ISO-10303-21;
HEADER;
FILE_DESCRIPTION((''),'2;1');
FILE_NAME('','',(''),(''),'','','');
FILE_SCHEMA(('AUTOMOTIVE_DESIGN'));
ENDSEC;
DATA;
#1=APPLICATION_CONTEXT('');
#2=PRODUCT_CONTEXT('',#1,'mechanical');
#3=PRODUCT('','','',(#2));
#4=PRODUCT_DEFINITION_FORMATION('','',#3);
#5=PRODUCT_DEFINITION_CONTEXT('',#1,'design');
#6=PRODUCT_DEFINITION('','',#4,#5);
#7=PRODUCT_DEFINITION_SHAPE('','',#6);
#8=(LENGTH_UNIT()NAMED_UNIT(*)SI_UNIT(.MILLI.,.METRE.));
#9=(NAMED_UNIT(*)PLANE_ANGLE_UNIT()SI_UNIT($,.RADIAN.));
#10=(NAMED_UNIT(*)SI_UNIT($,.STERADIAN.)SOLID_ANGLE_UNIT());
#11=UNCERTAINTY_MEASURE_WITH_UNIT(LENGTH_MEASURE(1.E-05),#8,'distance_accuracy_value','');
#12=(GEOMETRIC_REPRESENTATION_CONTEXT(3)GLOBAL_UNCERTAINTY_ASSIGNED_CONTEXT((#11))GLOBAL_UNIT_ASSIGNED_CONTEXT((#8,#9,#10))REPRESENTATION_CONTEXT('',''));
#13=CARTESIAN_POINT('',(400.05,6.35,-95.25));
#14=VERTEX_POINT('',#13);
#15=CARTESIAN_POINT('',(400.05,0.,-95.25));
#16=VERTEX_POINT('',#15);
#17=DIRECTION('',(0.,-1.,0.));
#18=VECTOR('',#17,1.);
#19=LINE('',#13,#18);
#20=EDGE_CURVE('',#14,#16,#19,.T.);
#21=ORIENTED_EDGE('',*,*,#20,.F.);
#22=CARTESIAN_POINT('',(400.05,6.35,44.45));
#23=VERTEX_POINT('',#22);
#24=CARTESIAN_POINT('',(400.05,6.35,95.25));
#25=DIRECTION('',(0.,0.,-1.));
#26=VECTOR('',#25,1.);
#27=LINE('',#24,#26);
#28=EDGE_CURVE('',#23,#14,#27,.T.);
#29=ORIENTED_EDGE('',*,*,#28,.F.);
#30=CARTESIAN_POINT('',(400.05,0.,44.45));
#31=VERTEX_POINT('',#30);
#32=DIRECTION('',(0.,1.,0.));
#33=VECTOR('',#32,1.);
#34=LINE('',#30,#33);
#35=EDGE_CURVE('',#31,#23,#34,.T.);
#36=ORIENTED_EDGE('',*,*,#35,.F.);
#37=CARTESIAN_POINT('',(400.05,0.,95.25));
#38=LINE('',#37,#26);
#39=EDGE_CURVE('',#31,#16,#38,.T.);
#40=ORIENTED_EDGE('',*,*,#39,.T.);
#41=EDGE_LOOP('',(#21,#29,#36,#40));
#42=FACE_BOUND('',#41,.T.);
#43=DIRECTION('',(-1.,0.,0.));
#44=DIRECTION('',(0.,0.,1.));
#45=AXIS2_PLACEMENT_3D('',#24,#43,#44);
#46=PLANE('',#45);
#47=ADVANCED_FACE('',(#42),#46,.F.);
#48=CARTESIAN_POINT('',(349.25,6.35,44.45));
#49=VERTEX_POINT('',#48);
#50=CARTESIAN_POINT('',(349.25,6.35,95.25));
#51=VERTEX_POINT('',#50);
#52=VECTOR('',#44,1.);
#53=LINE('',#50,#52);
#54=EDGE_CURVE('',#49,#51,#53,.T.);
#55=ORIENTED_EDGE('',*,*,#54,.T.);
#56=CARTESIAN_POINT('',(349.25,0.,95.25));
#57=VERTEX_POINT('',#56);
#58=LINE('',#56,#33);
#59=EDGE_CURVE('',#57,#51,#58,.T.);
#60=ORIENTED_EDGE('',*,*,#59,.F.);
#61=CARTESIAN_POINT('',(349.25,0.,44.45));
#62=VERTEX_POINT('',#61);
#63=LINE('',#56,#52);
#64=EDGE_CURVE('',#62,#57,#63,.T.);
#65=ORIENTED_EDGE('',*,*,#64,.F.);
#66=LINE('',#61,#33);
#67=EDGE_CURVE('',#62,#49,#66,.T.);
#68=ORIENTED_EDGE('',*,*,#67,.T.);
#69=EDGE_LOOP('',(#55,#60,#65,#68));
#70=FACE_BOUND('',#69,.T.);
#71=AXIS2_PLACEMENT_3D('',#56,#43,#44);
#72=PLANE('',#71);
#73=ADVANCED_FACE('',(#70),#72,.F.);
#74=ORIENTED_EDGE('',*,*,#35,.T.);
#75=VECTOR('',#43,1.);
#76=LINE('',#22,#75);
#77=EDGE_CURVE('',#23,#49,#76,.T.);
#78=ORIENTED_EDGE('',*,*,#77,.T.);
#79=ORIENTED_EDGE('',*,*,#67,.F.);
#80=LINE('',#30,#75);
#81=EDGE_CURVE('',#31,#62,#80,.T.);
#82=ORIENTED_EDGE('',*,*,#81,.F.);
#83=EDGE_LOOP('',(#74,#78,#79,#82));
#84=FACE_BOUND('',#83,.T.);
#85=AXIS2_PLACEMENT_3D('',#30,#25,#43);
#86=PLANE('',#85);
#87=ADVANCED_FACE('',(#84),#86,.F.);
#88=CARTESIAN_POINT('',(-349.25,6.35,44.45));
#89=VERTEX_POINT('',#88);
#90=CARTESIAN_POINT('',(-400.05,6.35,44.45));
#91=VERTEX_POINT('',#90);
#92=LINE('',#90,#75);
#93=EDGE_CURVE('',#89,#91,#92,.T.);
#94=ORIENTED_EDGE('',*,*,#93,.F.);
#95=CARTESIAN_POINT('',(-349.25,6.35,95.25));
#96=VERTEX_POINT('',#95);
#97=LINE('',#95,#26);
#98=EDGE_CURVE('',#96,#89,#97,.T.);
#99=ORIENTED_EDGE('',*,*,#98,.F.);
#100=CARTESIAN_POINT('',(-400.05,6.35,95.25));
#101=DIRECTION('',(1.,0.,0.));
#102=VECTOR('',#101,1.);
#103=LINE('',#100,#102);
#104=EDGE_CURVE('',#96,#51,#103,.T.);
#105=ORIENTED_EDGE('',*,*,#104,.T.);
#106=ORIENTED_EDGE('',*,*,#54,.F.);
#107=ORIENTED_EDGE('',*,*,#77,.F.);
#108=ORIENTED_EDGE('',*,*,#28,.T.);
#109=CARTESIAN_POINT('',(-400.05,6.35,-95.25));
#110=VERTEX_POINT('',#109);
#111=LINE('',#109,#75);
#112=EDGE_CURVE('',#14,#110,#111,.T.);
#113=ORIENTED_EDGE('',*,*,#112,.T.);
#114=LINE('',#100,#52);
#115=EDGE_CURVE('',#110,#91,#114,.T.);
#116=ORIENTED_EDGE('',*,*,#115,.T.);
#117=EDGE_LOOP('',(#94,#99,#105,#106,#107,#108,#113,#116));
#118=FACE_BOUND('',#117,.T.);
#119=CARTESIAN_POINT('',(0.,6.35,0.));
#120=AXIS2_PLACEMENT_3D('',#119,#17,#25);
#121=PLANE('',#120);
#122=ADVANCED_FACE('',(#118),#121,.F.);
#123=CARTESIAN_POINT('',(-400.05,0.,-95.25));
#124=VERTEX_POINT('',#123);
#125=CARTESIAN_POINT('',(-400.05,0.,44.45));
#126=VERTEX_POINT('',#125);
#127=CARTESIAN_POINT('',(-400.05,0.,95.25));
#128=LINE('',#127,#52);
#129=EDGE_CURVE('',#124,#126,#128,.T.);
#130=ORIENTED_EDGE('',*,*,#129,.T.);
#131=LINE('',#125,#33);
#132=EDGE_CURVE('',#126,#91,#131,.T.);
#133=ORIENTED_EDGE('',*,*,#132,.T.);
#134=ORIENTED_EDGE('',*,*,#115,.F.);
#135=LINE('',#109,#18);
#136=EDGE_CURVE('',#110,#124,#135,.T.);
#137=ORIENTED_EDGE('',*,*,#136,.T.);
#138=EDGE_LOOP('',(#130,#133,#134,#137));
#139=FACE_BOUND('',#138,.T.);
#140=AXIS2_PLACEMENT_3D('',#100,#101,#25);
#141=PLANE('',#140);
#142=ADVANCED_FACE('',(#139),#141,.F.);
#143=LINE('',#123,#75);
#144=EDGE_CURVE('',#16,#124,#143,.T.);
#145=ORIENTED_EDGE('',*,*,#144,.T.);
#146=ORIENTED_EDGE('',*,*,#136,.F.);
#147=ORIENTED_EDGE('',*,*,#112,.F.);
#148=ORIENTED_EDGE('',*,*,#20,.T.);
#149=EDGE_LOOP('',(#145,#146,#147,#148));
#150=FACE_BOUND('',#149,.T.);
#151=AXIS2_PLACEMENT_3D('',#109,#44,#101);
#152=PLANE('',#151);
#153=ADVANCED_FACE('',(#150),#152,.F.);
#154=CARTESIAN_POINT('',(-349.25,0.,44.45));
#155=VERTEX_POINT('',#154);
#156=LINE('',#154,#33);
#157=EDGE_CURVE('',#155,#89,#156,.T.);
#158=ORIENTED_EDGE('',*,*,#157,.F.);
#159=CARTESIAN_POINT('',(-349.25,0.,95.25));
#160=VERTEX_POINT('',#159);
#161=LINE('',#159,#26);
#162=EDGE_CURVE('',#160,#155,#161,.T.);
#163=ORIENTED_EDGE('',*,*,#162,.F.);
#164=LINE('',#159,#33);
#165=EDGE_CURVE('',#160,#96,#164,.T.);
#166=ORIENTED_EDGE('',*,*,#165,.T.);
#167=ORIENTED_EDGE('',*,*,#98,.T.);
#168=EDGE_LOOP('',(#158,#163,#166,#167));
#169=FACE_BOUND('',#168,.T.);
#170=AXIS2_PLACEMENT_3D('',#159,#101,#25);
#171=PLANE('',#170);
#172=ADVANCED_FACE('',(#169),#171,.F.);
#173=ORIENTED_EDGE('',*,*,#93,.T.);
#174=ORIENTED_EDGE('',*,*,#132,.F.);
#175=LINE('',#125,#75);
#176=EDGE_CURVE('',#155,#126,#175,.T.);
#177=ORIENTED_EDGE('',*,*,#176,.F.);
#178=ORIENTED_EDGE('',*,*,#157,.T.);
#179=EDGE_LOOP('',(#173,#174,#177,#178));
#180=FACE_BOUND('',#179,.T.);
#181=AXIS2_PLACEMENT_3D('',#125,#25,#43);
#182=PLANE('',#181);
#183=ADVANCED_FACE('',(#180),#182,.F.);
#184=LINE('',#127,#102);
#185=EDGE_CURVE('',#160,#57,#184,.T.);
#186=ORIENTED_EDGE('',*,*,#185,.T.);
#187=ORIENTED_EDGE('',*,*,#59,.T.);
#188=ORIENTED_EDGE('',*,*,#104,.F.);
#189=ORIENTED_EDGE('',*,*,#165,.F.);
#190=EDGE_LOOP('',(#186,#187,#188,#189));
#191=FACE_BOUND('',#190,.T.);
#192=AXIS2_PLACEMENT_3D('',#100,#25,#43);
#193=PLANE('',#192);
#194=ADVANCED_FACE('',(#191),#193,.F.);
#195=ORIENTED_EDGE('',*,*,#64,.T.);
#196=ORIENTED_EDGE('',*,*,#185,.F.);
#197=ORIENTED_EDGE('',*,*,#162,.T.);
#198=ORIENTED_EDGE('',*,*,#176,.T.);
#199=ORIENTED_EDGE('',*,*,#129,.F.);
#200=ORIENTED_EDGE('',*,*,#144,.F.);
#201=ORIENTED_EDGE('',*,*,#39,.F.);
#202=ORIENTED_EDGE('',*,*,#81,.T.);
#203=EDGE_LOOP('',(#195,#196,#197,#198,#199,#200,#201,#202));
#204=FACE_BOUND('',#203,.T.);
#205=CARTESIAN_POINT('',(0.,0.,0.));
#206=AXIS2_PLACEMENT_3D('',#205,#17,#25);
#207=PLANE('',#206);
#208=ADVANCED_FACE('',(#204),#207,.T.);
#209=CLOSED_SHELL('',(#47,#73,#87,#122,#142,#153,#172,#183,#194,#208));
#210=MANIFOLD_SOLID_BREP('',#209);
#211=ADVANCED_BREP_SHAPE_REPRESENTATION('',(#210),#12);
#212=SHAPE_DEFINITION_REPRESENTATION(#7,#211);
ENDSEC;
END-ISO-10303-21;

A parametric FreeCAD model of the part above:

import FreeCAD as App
import Part
import Sketcher

V = App.Vector
Q = App.Units.Quantity

doc = App.newDocument("Part")
body = doc.addObject("PartDesign::Body", "Body")

sketch1 = body.newObject("Sketcher::SketchObject", "Sketch")
sketch1.AttachmentSupport = (doc.getObject("XZ_Plane"), [""])
sketch1.MapMode = "FlatFace"
sketch1.addGeometry(Part.LineSegment(V(-400, -95, 0), V(-400, 95, 0)), False)
sketch1.addGeometry(Part.LineSegment(V(-400, 95, 0), V(400, 95, 0)), False)
sketch1.addGeometry(Part.LineSegment(V(400, 95, 0), V(400, -95, 0)), False)
sketch1.addGeometry(Part.LineSegment(V(400, -95, 0), V(-400, -95, 0)), False)
sketch1.addConstraint(Sketcher.Constraint("Coincident", 0, 2, 1, 1))
sketch1.addConstraint(Sketcher.Constraint("Coincident", 1, 2, 2, 1))
sketch1.addConstraint(Sketcher.Constraint("Coincident", 2, 2, 3, 1))
sketch1.addConstraint(Sketcher.Constraint("Coincident", 3, 2, 0, 1))
sketch1.addConstraint(Sketcher.Constraint("Vertical", 0))
sketch1.addConstraint(Sketcher.Constraint("Horizontal", 1))
sketch1.addConstraint(Sketcher.Constraint("Vertical", 2))
sketch1.addConstraint(Sketcher.Constraint("Horizontal", 3))
sketch1.addConstraint(Sketcher.Constraint("Symmetric", 0, 2, 2, 2, -1, 1))
sketch1.addConstraint(Sketcher.Constraint("DistanceX", 1, 1, 1, 2, Q("31.5 in")))
sketch1.addConstraint(Sketcher.Constraint("DistanceY", 0, 1, 0, 2, Q("7.5 in")))
pad1 = body.newObject("PartDesign::Pad", "Pad")
pad1.Profile = sketch1
pad1.Length = Q("0.25 in")
pad1.Reversed = True

sketch2 = body.newObject("Sketcher::SketchObject", "Sketch001")
sketch2.AttachmentSupport = (doc.getObject("XZ_Plane"), [""])
sketch2.MapMode = "FlatFace"
sketch2.AttachmentOffset = App.Placement(V(0, 0, -0.25 * 25.4), App.Rotation())
sketch2.addGeometry(Part.LineSegment(V(349, 44, 0), V(349, 95, 0)), False)
sketch2.addGeometry(Part.LineSegment(V(349, 95, 0), V(400, 95, 0)), False)
sketch2.addGeometry(Part.LineSegment(V(400, 95, 0), V(400, 44, 0)), False)
sketch2.addGeometry(Part.LineSegment(V(400, 44, 0), V(349, 44, 0)), False)
sketch2.addGeometry(Part.LineSegment(V(-400, 44, 0), V(-400, 95, 0)), False)
sketch2.addGeometry(Part.LineSegment(V(-400, 95, 0), V(-349, 95, 0)), False)
sketch2.addGeometry(Part.LineSegment(V(-349, 95, 0), V(-349, 44, 0)), False)
sketch2.addGeometry(Part.LineSegment(V(-349, 44, 0), V(-400, 44, 0)), False)
sketch2.addConstraint(Sketcher.Constraint("Coincident", 0, 2, 1, 1))
sketch2.addConstraint(Sketcher.Constraint("Coincident", 1, 2, 2, 1))
sketch2.addConstraint(Sketcher.Constraint("Coincident", 2, 2, 3, 1))
sketch2.addConstraint(Sketcher.Constraint("Coincident", 3, 2, 0, 1))
sketch2.addConstraint(Sketcher.Constraint("Coincident", 4, 2, 5, 1))
sketch2.addConstraint(Sketcher.Constraint("Coincident", 5, 2, 6, 1))
sketch2.addConstraint(Sketcher.Constraint("Coincident", 6, 2, 7, 1))
sketch2.addConstraint(Sketcher.Constraint("Coincident", 7, 2, 4, 1))
sketch2.addConstraint(Sketcher.Constraint("Vertical", 0))
sketch2.addConstraint(Sketcher.Constraint("Horizontal", 1))
sketch2.addConstraint(Sketcher.Constraint("Vertical", 2))
sketch2.addConstraint(Sketcher.Constraint("Horizontal", 3))
sketch2.addConstraint(Sketcher.Constraint("Vertical", 4))
sketch2.addConstraint(Sketcher.Constraint("Horizontal", 5))
sketch2.addConstraint(Sketcher.Constraint("Vertical", 6))
sketch2.addConstraint(Sketcher.Constraint("Horizontal", 7))
sketch2.addConstraint(Sketcher.Constraint("Symmetric", 1, 2, 4, 2, -2))
sketch2.addConstraint(Sketcher.Constraint("Symmetric", 3, 2, 6, 2, -2))
sketch2.addConstraint(Sketcher.Constraint("Equal", 7, 0))
sketch2.addConstraint(Sketcher.Constraint("DistanceX", 1, 1, 1, 2, Q("2 in")))
sketch2.addConstraint(Sketcher.Constraint("DistanceX", 4, 2, 0, 2, Q("29.5 in")))
sketch2.addConstraint(Sketcher.Constraint("DistanceY", -1, 1, 0, 2, Q("3.75 in")))
pocket1 = body.newObject("PartDesign::Pocket", "Pocket")
pocket1.Profile = sketch2
pocket1.Type = "ThroughAll"
pocket1.Reversed = True

doc.recompute()
